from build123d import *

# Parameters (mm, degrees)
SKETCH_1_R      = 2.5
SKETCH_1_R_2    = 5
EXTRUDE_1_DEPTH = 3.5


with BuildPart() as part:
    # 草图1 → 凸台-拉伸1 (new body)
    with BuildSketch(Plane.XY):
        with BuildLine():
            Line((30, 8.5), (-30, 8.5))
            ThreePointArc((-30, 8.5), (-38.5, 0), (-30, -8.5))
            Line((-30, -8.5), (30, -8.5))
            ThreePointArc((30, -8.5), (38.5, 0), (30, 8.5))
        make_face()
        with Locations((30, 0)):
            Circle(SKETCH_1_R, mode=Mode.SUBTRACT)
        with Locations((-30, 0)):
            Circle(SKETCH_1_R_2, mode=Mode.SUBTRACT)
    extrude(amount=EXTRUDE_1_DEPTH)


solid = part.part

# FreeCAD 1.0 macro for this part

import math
import FreeCAD as App
import Part
import Sketcher
from FreeCAD import Vector

doc = App.newDocument("Part")
body = doc.addObject("PartDesign::Body", "Body")

# Sketch on XY plane
sketch1 = body.newObject("Sketcher::SketchObject", "Sketch")
sketch1.AttachmentSupport = (doc.getObject("XY_Plane"), [""])
sketch1.MapMode = "FlatFace"
sketch1.addGeometry([
    Part.LineSegment(Vector(30, 8.5, 0), Vector(-30, 8.5, 0)),  # 0
    Part.ArcOfCircle(Part.Circle(Vector(-30, 0, 0), Vector(0, 0, 1), 8.5), math.radians(90), math.radians(270)),  # 1
    Part.LineSegment(Vector(-30, -8.5, 0), Vector(30, -8.5, 0)),  # 2
    Part.ArcOfCircle(Part.Circle(Vector(30, 0, 0), Vector(0, 0, 1), 8.5), math.radians(-90), math.radians(90)),  # 3
    Part.Circle(Vector(-30, 0, 0), Vector(0, 0, 1), 5),  # 4
    Part.Circle(Vector(30, 0, 0), Vector(0, 0, 1), 2.5),  # 5
], False)
sketch1.addConstraint([
    Sketcher.Constraint("Tangent", 0, 2, 1, 1),
    Sketcher.Constraint("Tangent", 1, 2, 2, 1),
    Sketcher.Constraint("Tangent", 2, 2, 3, 1),
    Sketcher.Constraint("Tangent", 3, 2, 0, 1),
    Sketcher.Constraint("Horizontal", 0),
    Sketcher.Constraint("Horizontal", 2),
    Sketcher.Constraint("Coincident", 4, 3, 1, 3),
    Sketcher.Constraint("Coincident", 5, 3, 3, 3),
    Sketcher.Constraint("Symmetric", 1, 3, 3, 3, -1, 1),
    Sketcher.Constraint("Diameter", 4, 10.0),
    Sketcher.Constraint("Diameter", 5, 5.0),
    Sketcher.Constraint("Radius", 1, 8.5),
    Sketcher.Constraint("DistanceX", 0, 2, 0, 1, 60.0),
])
pad1 = body.newObject("PartDesign::Pad", "Pad")
pad1.Profile = sketch1
pad1.Length = 3.5

doc.recompute()
